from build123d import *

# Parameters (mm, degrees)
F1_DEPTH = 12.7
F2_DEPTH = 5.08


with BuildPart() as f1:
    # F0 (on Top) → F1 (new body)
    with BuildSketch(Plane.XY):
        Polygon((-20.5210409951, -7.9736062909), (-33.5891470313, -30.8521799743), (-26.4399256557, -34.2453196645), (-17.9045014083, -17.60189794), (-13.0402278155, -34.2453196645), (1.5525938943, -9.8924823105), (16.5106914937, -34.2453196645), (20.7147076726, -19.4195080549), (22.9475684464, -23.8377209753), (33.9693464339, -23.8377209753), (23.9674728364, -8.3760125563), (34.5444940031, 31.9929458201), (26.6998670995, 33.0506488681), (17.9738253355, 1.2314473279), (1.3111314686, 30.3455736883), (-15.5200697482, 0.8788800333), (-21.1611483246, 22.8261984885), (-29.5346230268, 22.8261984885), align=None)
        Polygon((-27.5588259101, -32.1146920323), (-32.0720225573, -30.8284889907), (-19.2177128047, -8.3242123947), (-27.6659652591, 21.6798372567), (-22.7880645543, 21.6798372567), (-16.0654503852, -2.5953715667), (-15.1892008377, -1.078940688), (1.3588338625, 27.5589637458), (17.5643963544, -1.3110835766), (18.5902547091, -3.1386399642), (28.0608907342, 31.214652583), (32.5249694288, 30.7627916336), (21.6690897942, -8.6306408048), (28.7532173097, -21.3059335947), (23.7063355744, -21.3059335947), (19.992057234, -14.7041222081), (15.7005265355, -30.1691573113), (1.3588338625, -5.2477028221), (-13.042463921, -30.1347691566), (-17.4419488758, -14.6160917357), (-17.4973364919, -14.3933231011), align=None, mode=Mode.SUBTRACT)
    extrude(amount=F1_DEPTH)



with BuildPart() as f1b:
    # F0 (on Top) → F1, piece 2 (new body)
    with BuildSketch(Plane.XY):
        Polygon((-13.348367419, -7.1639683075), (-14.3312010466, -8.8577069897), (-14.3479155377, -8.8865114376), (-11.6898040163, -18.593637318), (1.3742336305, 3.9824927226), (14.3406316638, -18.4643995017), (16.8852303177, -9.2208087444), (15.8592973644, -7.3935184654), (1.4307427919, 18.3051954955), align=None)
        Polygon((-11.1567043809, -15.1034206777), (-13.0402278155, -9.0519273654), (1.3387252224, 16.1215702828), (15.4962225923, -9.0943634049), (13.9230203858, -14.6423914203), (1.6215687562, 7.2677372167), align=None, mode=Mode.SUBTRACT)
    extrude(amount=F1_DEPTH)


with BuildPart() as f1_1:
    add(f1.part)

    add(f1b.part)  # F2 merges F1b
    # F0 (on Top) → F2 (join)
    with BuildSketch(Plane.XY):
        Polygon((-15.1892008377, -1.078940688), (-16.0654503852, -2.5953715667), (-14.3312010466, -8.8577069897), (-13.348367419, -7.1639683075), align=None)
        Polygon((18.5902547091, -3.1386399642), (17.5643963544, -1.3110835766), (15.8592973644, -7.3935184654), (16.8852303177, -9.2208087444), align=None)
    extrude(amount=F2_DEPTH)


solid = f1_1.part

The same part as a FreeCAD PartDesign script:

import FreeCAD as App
import Part
import Sketcher
from FreeCAD import Vector
Q = App.Units.Quantity


def add_polygon(sketch, points):
    """Adds a closed chain of lines whose ends are joined by coincident constraints."""
    first, n = sketch.GeometryCount, len(points)
    for a, b in zip(points, points[1:] + points[:1]):
        sketch.addGeometry(Part.LineSegment(App.Vector(*a, 0), App.Vector(*b, 0)), False)
    for i in range(n):
        sketch.addConstraint(Sketcher.Constraint("Coincident", first + i, 2, first + (i + 1) % n, 1))

doc = App.newDocument("Part")
body = doc.addObject("PartDesign::Body", "Body")

sketch1 = doc.addObject("Sketcher::SketchObject", "Sketch")
body.addObject(sketch1)
sketch1.AttachmentSupport = (doc.XY_Plane, [""])
sketch1.MapMode = "FlatFace"
add_polygon(sketch1, [(-20.521041, -7.973606), (-33.589147, -30.85218), (-26.439926, -34.24532), (-17.904501, -17.601898), (-13.040228, -34.24532), (1.552594, -9.892482), (16.510691, -34.24532), (20.714708, -19.419508), (22.947568, -23.837721), (33.969346, -23.837721), (23.967473, -8.376013), (34.544494, 31.992946), (26.699867, 33.050649), (17.973825, 1.231447), (1.311131, 30.345574), (-15.52007, 0.87888), (-21.161148, 22.826198), (-29.534623, 22.826198)])
add_polygon(sketch1, [(-17.497336, -14.393323), (-27.558826, -32.114692), (-32.072023, -30.828489), (-19.217713, -8.324212), (-27.665965, 21.679837), (-22.788065, 21.679837), (-16.06545, -2.595372), (-15.189201, -1.078941), (1.358834, 27.558964), (17.564396, -1.311084), (18.590255, -3.13864), (28.060891, 31.214653), (32.524969, 30.762792), (21.66909, -8.630641), (28.753217, -21.305934), (23.706336, -21.305934), (19.992057, -14.704122), (15.700527, -30.169157), (1.358834, -5.247703), (-13.042464, -30.134769), (-17.441949, -14.616092)])
sketch1.addConstraint(Sketcher.Constraint("Horizontal", 8))
sketch1.addConstraint(Sketcher.Constraint("Horizontal", 16))
sketch1.addConstraint(Sketcher.Constraint("Horizontal", 22))
sketch1.addConstraint(Sketcher.Constraint("Horizontal", 32))
sketch1.addConstraint(Sketcher.Constraint("DistanceX", 24, 2, -1, 1, Q("0.598 in")))
sketch1.addConstraint(Sketcher.Constraint("DistanceX", 22, 1, 22, 2, Q("4.877901 mm")))
sketch1.addConstraint(Sketcher.Constraint("DistanceX", 13, 2, 10, 2, Q("1.3084001 in")))
sketch1.addConstraint(Sketcher.Constraint("Distance", 26, Q("33.107399 mm")))
sketch1.addConstraint(Sketcher.Constraint("DistanceX", 32, 2, 32, 1, Q("5.046882 mm")))
sketch1.addConstraint(Sketcher.Constraint("DistanceX", 2, 2, -1, 1, Q("17.904501 mm")))
sketch1.addConstraint(Sketcher.Constraint("DistanceY", -1, 1, 15, 2, Q("22.826198 mm")))
sketch1.addConstraint(Sketcher.Constraint("DistanceY", 5, 2, 7, 2, Q("10.407599 mm")))
sketch1.addConstraint(Sketcher.Constraint("DistanceY", 3, 2, 7, 2, Q("10.407599 mm")))
sketch1.addConstraint(Sketcher.Constraint("DistanceX", 4, 2, 10, 2, Q("32.9919 mm")))
sketch1.addConstraint(Sketcher.Constraint("DistanceX", 7, 2, 11, 2, Q("3.752299 mm")))
sketch1.addConstraint(Sketcher.Constraint("DistanceX", 14, 2, 13, 2, Q("16.831201 mm")))
sketch1.addConstraint(Sketcher.Constraint("DistanceY", 3, 2, 14, 2, Q("35.1242 mm")))
sketch1.addConstraint(Sketcher.Constraint("DistanceX", 18, 2, 1, 2, Q("1.1189 mm")))
sketch1.addConstraint(Sketcher.Constraint("DistanceX", 18, 2, 3, 2, Q("14.518598 mm")))
sketch1.addConstraint(Sketcher.Constraint("DistanceX", 22, 2, 25, 2, Q("24.146898 mm")))
sketch1.addConstraint(Sketcher.Constraint("DistanceY", 4, 2, 26, 2, Q("8.581399 mm")))
sketch1.addConstraint(Sketcher.Constraint("DistanceY", 30, 2, 27, 2, Q("5.492001 mm")))
sketch1.addConstraint(Sketcher.Constraint("DistanceY", 7, 2, 33, 2, Q("9.133599 mm")))
sketch1.addConstraint(Sketcher.Constraint("DistanceX", 37, 2, 23, 2, Q("1.376498 mm")))
sketch1.addConstraint(Sketcher.Constraint("Distance", 0, Q("26.347761 mm")))
sketch1.addConstraint(Sketcher.Constraint("Distance", 1, Q("7.913581 mm")))
sketch1.addConstraint(Sketcher.Constraint("Distance", 7, Q("4.950381 mm")))
sketch1.addConstraint(Sketcher.Constraint("Distance", 9, Q("18.41472 mm")))
sketch1.addConstraint(Sketcher.Constraint("Distance", 11, Q("7.915612 mm")))
sketch1.addConstraint(Sketcher.Constraint("Distance", 12, Q("32.994021 mm")))
sketch1.addConstraint(Sketcher.Constraint("Distance", 13, Q("33.545159 mm")))
sketch1.addConstraint(Sketcher.Constraint("Distance", 14, Q("33.93487 mm")))
sketch1.addConstraint(Sketcher.Constraint("Distance", 17, Q("32.091629 mm")))
sketch1.addConstraint(Sketcher.Constraint("Distance", 18, Q("20.378432 mm")))
sketch1.addConstraint(Sketcher.Constraint("Distance", 29, Q("4.486889 mm")))
sketch1.addConstraint(Sketcher.Constraint("Distance", 34, Q("16.049441 mm")))
sketch1.addConstraint(Sketcher.Constraint("Distance", 38, Q("0.229551 mm")))
sketch1.addConstraint(Sketcher.Constraint("DistanceX", 8, 1, 8, 2, Q("11.021778 mm")))
sketch1.addConstraint(Sketcher.Constraint("DistanceX", 16, 2, 16, 1, Q("8.373475 mm")))
sketch1.addConstraint(Sketcher.Constraint("DistanceY", 0, 2, -1, 1, Q("30.85218 mm")))
sketch1.addConstraint(Sketcher.Constraint("DistanceY", 1, 2, -1, 1, Q("34.24532 mm")))
sketch1.addConstraint(Sketcher.Constraint("DistanceY", 3, 2, -1, 1, Q("34.24532 mm")))
sketch1.addConstraint(Sketcher.Constraint("DistanceX", -1, 1, 5, 2, Q("16.510691 mm")))
sketch1.addConstraint(Sketcher.Constraint("DistanceY", 6, 2, -1, 1, Q("19.419508 mm")))
sketch1.addConstraint(Sketcher.Constraint("DistanceX", -1, 1, 7, 2, Q("22.947568 mm")))
sketch1.addConstraint(Sketcher.Constraint("DistanceY", -1, 1, 11, 2, Q("33.050649 mm")))
sketch1.addConstraint(Sketcher.Constraint("DistanceX", -1, 1, 13, 2, Q("1.311131 mm")))
sketch1.addConstraint(Sketcher.Constraint("DistanceX", 15, 2, -1, 1, Q("21.161148 mm")))
sketch1.addConstraint(Sketcher.Constraint("DistanceX", 17, 2, -1, 1, Q("20.521041 mm")))
sketch1.addConstraint(Sketcher.Constraint("DistanceY", 19, 2, -1, 1, Q("30.828489 mm")))
sketch1.addConstraint(Sketcher.Constraint("DistanceX", 23, 2, -1, 1, Q("16.06545 mm")))
sketch1.addConstraint(Sketcher.Constraint("DistanceY", 23, 2, -1, 1, Q("2.595372 mm")))
sketch1.addConstraint(Sketcher.Constraint("DistanceY", 24, 2, -1, 1, Q("1.078941 mm")))
sketch1.addConstraint(Sketcher.Constraint("DistanceY", 27, 2, -1, 1, Q("3.13864 mm")))
sketch1.addConstraint(Sketcher.Constraint("DistanceX", -1, 1, 28, 2, Q("28.060891 mm")))
sketch1.addConstraint(Sketcher.Constraint("DistanceX", -1, 1, 29, 2, Q("32.524969 mm")))
sketch1.addConstraint(Sketcher.Constraint("DistanceY", -1, 1, 29, 2, Q("30.762792 mm")))
sketch1.addConstraint(Sketcher.Constraint("DistanceX", -1, 1, 30, 2, Q("21.66909 mm")))
sketch1.addConstraint(Sketcher.Constraint("DistanceY", 36, 2, -1, 1, Q("30.134769 mm")))
sketch1.addConstraint(Sketcher.Constraint("DistanceY", 37, 2, -1, 1, Q("14.616092 mm")))
sketch1.addConstraint(Sketcher.Constraint("DistanceY", 1, 2, 2, 2, Q("16.643422 mm")))
sketch1.addConstraint(Sketcher.Constraint("DistanceY", 7, 2, 4, 2, Q("13.945239 mm")))
sketch1.addConstraint(Sketcher.Constraint("DistanceY", 7, 2, 9, 2, Q("15.461708 mm")))
sketch1.addConstraint(Sketcher.Constraint("DistanceX", 19, 2, 2, 2, Q("14.167521 mm")))
sketch1.addConstraint(Sketcher.Constraint("DistanceX", 17, 2, 20, 2, Q("1.303328 mm")))
sketch1.addConstraint(Sketcher.Constraint("DistanceY", 4, 2, 20, 2, Q("1.56827 mm")))
sketch1.addConstraint(Sketcher.Constraint("DistanceY", 18, 2, 20, 2, Q("23.79048 mm")))
sketch1.addConstraint(Sketcher.Constraint("DistanceY", 21, 2, 16, 2, Q("1.146361 mm")))
sketch1.addConstraint(Sketcher.Constraint("DistanceX", 16, 2, 22, 2, Q("6.746558 mm")))
sketch1.addConstraint(Sketcher.Constraint("DistanceY", 25, 2, 13, 2, Q("2.78661 mm")))
sketch1.addConstraint(Sketcher.Constraint("DistanceX", 26, 2, 27, 2, Q("1.025858 mm")))
sketch1.addConstraint(Sketcher.Constraint("DistanceX", 31, 2, 8, 2, Q("5.216129 mm")))
sketch1.addConstraint(Sketcher.Constraint("DistanceY", 31, 2, 9, 2, Q("12.929921 mm")))
sketch1.addConstraint(Sketcher.Constraint("DistanceX", 33, 2, 6, 2, Q("0.72265 mm")))
sketch1.addConstraint(Sketcher.Constraint("DistanceX", 34, 2, 7, 2, Q("7.247042 mm")))
sketch1.addConstraint(Sketcher.Constraint("DistanceX", 35, 2, 4, 2, Q("0.19376 mm")))
sketch1.addConstraint(Sketcher.Constraint("DistanceY", 4, 2, 35, 2, Q("4.644779 mm")))
sketch1.addConstraint(Sketcher.Constraint("DistanceX", 1, 2, 36, 2, Q("13.397462 mm")))
pad1 = doc.addObject("PartDesign::Pad", "Pad")
body.addObject(pad1)
pad1.Profile = sketch1
pad1.Length = Q("0.5 in")
body2 = doc.addObject("PartDesign::Body", "Body001")

sketch2 = doc.addObject("Sketcher::SketchObject", "Sketch001")
body2.addObject(sketch2)
sketch2.AttachmentSupport = (doc.getObject("XY_Plane001"), [""])
sketch2.MapMode = "FlatFace"
add_polygon(sketch2, [(-13.348, -7.164), (-14.331, -8.858), (-14.348, -8.887), (-11.69, -18.594), (1.374, 3.982), (14.341, -18.464), (16.885, -9.221), (15.859, -7.394), (1.431, 18.305)])
add_polygon(sketch2, [(1.622, 7.268), (-11.157, -15.103), (-13.04, -9.052), (1.339, 16.122), (15.496, -9.094), (13.923, -14.642)])
sketch2.addConstraint(Sketcher.Constraint("Parallel", 0, 1))
sketch2.addConstraint(Sketcher.Constraint("Parallel", 6, 7))
sketch2.addConstraint(Sketcher.Constraint("Parallel", 1, 8))
sketch2.addConstraint(Sketcher.Constraint("Parallel", 9, 11))
sketch2.addConstraint(Sketcher.Constraint("Parallel", 7, 12))
sketch2.addConstraint(Sketcher.Constraint("Parallel", 12, 14))
sketch2.addConstraint(Sketcher.Constraint("DistanceX", 0, 2, -1, 1, Q("14.331201 mm")))
sketch2.addConstraint(Sketcher.Constraint("DistanceY", 4, 2, -1, 1, Q("18.4644 mm")))
sketch2.addConstraint(Sketcher.Constraint("DistanceY", 0, 2, 3, 2, Q("12.8402 mm")))
sketch2.addConstraint(Sketcher.Constraint("DistanceX", 3, 2, 4, 2, Q("12.966398 mm")))
sketch2.addConstraint(Sketcher.Constraint("DistanceX", 4, 2, 5, 2, Q("2.544599 mm")))
sketch2.addConstraint(Sketcher.Constraint("DistanceY", 5, 2, 3, 2, Q("13.203301 mm")))
sketch2.addConstraint(Sketcher.Constraint("DistanceX", 2, 2, 6, 2, Q("27.549101 mm")))
sketch2.addConstraint(Sketcher.Constraint("DistanceX", 0, 2, 6, 2, Q("30.190498 mm")))
sketch2.addConstraint(Sketcher.Constraint("DistanceX", 8, 2, 3, 2, Q("14.722601 mm")))
sketch2.addConstraint(Sketcher.Constraint("DistanceX", 2, 2, 9, 2, Q("0.5331 mm")))
sketch2.addConstraint(Sketcher.Constraint("Distance", 4, Q("25.922779 mm")))
sketch2.addConstraint(Sketcher.Constraint("Distance", 7, Q("29.472141 mm")))
sketch2.addConstraint(Sketcher.Constraint("Distance", 8, Q("29.446569 mm")))
sketch2.addConstraint(Sketcher.Constraint("Distance", 10, Q("6.337841 mm")))
sketch2.addConstraint(Sketcher.Constraint("DistanceY", 1, 2, -1, 1, Q("8.886511 mm")))
sketch2.addConstraint(Sketcher.Constraint("DistanceX", -1, 1, 4, 2, Q("14.340632 mm")))
sketch2.addConstraint(Sketcher.Constraint("DistanceY", 9, 2, -1, 1, Q("15.103421 mm")))
sketch2.addConstraint(Sketcher.Constraint("DistanceY", -1, 1, 11, 2, Q("16.12157 mm")))
sketch2.addConstraint(Sketcher.Constraint("DistanceX", -1, 1, 13, 2, Q("13.92302 mm")))
sketch2.addConstraint(Sketcher.Constraint("DistanceY", 13, 2, -1, 1, Q("14.642391 mm")))
sketch2.addConstraint(Sketcher.Constraint("DistanceX", -1, 1, 14, 2, Q("1.621569 mm")))
sketch2.addConstraint(Sketcher.Constraint("DistanceY", 2, 2, 0, 2, Q("9.73593 mm")))
sketch2.addConstraint(Sketcher.Constraint("DistanceY", 10, 2, 0, 2, Q("0.19422 mm")))
sketch2.addConstraint(Sketcher.Constraint("DistanceX", 4, 2, 12, 2, Q("1.155591 mm")))
pad2 = doc.addObject("PartDesign::Pad", "Pad001")
body2.addObject(pad2)
pad2.Profile = sketch2
pad2.Length = Q("0.5 in")
body.AllowCompound = True
doc.recompute()

boolean = doc.addObject("PartDesign::Boolean", "Boolean")
body.addObject(boolean)
boolean.Type = "Fuse"
boolean.addObjects([body2])

sketch3 = doc.addObject("Sketcher::SketchObject", "Sketch002")
body.addObject(sketch3)
sketch3.AttachmentSupport = (doc.XY_Plane, [""])
sketch3.MapMode = "FlatFace"
add_polygon(sketch3, [(-15.2, -1.1), (-16.1, -2.6), (-14.3, -8.9), (-13.3, -7.2)])
add_polygon(sketch3, [(18.6, -3.1), (17.6, -1.3), (15.9, -7.4), (16.9, -9.2)])
sketch3.addConstraint(Sketcher.Constraint("Parallel", 5, 7))
sketch3.addConstraint(Sketcher.Constraint("DistanceX", 3, 2, -1, 1, Q("0.598 in")))
sketch3.addConstraint(Sketcher.Constraint("DistanceX", 1, 2, -1, 1, Q("14.331201 mm")))
sketch3.addConstraint(Sketcher.Constraint("DistanceX", 5, 2, 4, 2, Q("1.705099 mm")))
sketch3.addConstraint(Sketcher.Constraint("DistanceX", 1, 2, 5, 2, Q("30.190498 mm")))
sketch3.addConstraint(Sketcher.Constraint("DistanceY", 6, 2, 1, 2, Q("0.363102 mm")))
sketch3.addConstraint(Sketcher.Constraint("Distance", 5, Q("6.316912 mm")))
sketch3.addConstraint(Sketcher.Constraint("DistanceX", 0, 2, -1, 1, Q("16.06545 mm")))
sketch3.addConstraint(Sketcher.Constraint("DistanceY", 0, 2, -1, 1, Q("2.595372 mm")))
sketch3.addConstraint(Sketcher.Constraint("DistanceY", 2, 2, -1, 1, Q("7.163968 mm")))
sketch3.addConstraint(Sketcher.Constraint("DistanceY", 3, 2, -1, 1, Q("1.078941 mm")))
sketch3.addConstraint(Sketcher.Constraint("DistanceY", 5, 2, -1, 1, Q("7.393518 mm")))
sketch3.addConstraint(Sketcher.Constraint("DistanceX", -1, 1, 6, 2, Q("16.88523 mm")))
sketch3.addConstraint(Sketcher.Constraint("DistanceY", 6, 2, -1, 1, Q("9.220809 mm")))
sketch3.addConstraint(Sketcher.Constraint("DistanceY", 7, 2, -1, 1, Q("3.13864 mm")))
sketch3.addConstraint(Sketcher.Constraint("Distance", 2, Q("1.958242 mm")))
pad3 = doc.addObject("PartDesign::Pad", "Pad002")
body.addObject(pad3)
pad3.Profile = sketch3
pad3.Length = Q("0.2 in")

doc.recompute()
